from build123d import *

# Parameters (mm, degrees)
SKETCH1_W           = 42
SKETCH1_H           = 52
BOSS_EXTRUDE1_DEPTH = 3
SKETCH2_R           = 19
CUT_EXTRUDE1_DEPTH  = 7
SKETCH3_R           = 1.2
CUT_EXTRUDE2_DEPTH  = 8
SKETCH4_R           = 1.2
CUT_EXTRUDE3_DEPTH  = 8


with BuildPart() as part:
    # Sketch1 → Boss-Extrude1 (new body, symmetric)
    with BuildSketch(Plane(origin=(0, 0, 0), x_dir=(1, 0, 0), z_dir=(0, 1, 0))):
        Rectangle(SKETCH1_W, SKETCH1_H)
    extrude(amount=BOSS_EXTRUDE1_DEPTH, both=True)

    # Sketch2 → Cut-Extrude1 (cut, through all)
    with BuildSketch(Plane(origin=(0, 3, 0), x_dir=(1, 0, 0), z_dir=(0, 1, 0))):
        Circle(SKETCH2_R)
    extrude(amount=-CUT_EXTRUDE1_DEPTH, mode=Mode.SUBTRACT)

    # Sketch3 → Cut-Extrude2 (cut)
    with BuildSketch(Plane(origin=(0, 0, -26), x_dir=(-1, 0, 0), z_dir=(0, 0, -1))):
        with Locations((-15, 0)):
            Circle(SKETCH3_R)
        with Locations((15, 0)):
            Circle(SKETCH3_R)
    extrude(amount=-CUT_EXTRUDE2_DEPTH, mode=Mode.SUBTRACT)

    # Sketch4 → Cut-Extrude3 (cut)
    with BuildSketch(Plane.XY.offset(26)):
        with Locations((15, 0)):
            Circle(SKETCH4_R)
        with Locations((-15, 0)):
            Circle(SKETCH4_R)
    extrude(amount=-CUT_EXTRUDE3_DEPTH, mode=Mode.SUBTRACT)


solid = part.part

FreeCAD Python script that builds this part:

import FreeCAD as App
import Part
import Sketcher

V = App.Vector

doc = App.newDocument("Part")
body = doc.addObject("PartDesign::Body", "Body")

# Sketch on XZ plane
sketch1 = body.newObject("Sketcher::SketchObject", "Sketch")
sketch1.AttachmentSupport = (doc.getObject("XZ_Plane"), [""])
sketch1.MapMode = "FlatFace"
sketch1.addGeometry(Part.LineSegment(V(-21, -26, 0), V(-21, 26, 0)), False)
sketch1.addGeometry(Part.LineSegment(V(-21, 26, 0), V(21, 26, 0)), False)
sketch1.addGeometry(Part.LineSegment(V(21, 26, 0), V(21, -26, 0)), False)
sketch1.addGeometry(Part.LineSegment(V(21, -26, 0), V(-21, -26, 0)), False)
sketch1.addConstraint(Sketcher.Constraint("Coincident", 0, 2, 1, 1))
sketch1.addConstraint(Sketcher.Constraint("Coincident", 1, 2, 2, 1))
sketch1.addConstraint(Sketcher.Constraint("Coincident", 2, 2, 3, 1))
sketch1.addConstraint(Sketcher.Constraint("Coincident", 3, 2, 0, 1))
sketch1.addConstraint(Sketcher.Constraint("Vertical", 0))
sketch1.addConstraint(Sketcher.Constraint("Horizontal", 1))
sketch1.addConstraint(Sketcher.Constraint("Vertical", 2))
sketch1.addConstraint(Sketcher.Constraint("Horizontal", 3))
sketch1.addConstraint(Sketcher.Constraint("Symmetric", 0, 2, 2, 2, -1, 1))
sketch1.addConstraint(Sketcher.Constraint("DistanceX", 1, 1, 1, 2, 42.0))
sketch1.addConstraint(Sketcher.Constraint("DistanceY", 0, 1, 0, 2, 52.0))
pad1 = body.newObject("PartDesign::Pad", "Pad")
pad1.Profile = sketch1
pad1.Length = 6
pad1.Midplane = True

# Sketch on XZ plane
sketch2 = body.newObject("Sketcher::SketchObject", "Sketch001")
sketch2.AttachmentSupport = (doc.getObject("XZ_Plane"), [""])
sketch2.MapMode = "FlatFace"
sketch2.AttachmentOffset = App.Placement(V(0, 0, -3), App.Rotation())
sketch2.addGeometry(Part.Circle(V(0, 0, 0), V(0, 0, 1), 19), False)
sketch2.addConstraint(Sketcher.Constraint("Coincident", 0, 3, -1, 1))
sketch2.addConstraint(Sketcher.Constraint("Diameter", 0, 38.0))
pocket1 = body.newObject("PartDesign::Pocket", "Pocket")
pocket1.Profile = sketch2
pocket1.Type = "ThroughAll"
pocket1.Reversed = True

# Sketch on XY plane
sketch3 = body.newObject("Sketcher::SketchObject", "Sketch002")
sketch3.AttachmentSupport = (doc.getObject("XY_Plane"), [""])
sketch3.MapMode = "FlatFace"
sketch3.AttachmentOffset = App.Placement(V(0, 0, -26), App.Rotation())
sketch3.addGeometry(Part.Circle(V(15, 0, 0), V(0, 0, 1), 1.2), False)
sketch3.addGeometry(Part.Circle(V(-15, 0, 0), V(0, 0, 1), 1.2), False)
sketch3.addConstraint(Sketcher.Constraint("Equal", 0, 1))
sketch3.addConstraint(Sketcher.Constraint("Symmetric", 0, 3, 1, 3, -1, 1))
sketch3.addConstraint(Sketcher.Constraint("PointOnObject", 0, 3, -1))
sketch3.addConstraint(Sketcher.Constraint("Diameter", 0, 2.4))
sketch3.addConstraint(Sketcher.Constraint("DistanceX", -1, 1, 0, 3, 15.0))
pocket2 = body.newObject("PartDesign::Pocket", "Pocket001")
pocket2.Profile = sketch3
pocket2.Length = 8
pocket2.Reversed = True

# Sketch on XY plane
sketch4 = body.newObject("Sketcher::SketchObject", "Sketch003")
sketch4.AttachmentSupport = (doc.getObject("XY_Plane"), [""])
sketch4.MapMode = "FlatFace"
sketch4.AttachmentOffset = App.Placement(V(0, 0, 26), App.Rotation())
sketch4.addGeometry(Part.Circle(V(15, 0, 0), V(0, 0, 1), 1.2), False)
sketch4.addGeometry(Part.Circle(V(-15, 0, 0), V(0, 0, 1), 1.2), False)
sketch4.addConstraint(Sketcher.Constraint("Equal", 0, 1))
sketch4.addConstraint(Sketcher.Constraint("Symmetric", 0, 3, 1, 3, -1, 1))
sketch4.addConstraint(Sketcher.Constraint("PointOnObject", 0, 3, -1))
sketch4.addConstraint(Sketcher.Constraint("Diameter", 0, 2.4))
sketch4.addConstraint(Sketcher.Constraint("DistanceX", -1, 1, 0, 3, 15.0))
pocket3 = body.newObject("PartDesign::Pocket", "Pocket002")
pocket3.Profile = sketch4
pocket3.Length = 8

doc.recompute()
